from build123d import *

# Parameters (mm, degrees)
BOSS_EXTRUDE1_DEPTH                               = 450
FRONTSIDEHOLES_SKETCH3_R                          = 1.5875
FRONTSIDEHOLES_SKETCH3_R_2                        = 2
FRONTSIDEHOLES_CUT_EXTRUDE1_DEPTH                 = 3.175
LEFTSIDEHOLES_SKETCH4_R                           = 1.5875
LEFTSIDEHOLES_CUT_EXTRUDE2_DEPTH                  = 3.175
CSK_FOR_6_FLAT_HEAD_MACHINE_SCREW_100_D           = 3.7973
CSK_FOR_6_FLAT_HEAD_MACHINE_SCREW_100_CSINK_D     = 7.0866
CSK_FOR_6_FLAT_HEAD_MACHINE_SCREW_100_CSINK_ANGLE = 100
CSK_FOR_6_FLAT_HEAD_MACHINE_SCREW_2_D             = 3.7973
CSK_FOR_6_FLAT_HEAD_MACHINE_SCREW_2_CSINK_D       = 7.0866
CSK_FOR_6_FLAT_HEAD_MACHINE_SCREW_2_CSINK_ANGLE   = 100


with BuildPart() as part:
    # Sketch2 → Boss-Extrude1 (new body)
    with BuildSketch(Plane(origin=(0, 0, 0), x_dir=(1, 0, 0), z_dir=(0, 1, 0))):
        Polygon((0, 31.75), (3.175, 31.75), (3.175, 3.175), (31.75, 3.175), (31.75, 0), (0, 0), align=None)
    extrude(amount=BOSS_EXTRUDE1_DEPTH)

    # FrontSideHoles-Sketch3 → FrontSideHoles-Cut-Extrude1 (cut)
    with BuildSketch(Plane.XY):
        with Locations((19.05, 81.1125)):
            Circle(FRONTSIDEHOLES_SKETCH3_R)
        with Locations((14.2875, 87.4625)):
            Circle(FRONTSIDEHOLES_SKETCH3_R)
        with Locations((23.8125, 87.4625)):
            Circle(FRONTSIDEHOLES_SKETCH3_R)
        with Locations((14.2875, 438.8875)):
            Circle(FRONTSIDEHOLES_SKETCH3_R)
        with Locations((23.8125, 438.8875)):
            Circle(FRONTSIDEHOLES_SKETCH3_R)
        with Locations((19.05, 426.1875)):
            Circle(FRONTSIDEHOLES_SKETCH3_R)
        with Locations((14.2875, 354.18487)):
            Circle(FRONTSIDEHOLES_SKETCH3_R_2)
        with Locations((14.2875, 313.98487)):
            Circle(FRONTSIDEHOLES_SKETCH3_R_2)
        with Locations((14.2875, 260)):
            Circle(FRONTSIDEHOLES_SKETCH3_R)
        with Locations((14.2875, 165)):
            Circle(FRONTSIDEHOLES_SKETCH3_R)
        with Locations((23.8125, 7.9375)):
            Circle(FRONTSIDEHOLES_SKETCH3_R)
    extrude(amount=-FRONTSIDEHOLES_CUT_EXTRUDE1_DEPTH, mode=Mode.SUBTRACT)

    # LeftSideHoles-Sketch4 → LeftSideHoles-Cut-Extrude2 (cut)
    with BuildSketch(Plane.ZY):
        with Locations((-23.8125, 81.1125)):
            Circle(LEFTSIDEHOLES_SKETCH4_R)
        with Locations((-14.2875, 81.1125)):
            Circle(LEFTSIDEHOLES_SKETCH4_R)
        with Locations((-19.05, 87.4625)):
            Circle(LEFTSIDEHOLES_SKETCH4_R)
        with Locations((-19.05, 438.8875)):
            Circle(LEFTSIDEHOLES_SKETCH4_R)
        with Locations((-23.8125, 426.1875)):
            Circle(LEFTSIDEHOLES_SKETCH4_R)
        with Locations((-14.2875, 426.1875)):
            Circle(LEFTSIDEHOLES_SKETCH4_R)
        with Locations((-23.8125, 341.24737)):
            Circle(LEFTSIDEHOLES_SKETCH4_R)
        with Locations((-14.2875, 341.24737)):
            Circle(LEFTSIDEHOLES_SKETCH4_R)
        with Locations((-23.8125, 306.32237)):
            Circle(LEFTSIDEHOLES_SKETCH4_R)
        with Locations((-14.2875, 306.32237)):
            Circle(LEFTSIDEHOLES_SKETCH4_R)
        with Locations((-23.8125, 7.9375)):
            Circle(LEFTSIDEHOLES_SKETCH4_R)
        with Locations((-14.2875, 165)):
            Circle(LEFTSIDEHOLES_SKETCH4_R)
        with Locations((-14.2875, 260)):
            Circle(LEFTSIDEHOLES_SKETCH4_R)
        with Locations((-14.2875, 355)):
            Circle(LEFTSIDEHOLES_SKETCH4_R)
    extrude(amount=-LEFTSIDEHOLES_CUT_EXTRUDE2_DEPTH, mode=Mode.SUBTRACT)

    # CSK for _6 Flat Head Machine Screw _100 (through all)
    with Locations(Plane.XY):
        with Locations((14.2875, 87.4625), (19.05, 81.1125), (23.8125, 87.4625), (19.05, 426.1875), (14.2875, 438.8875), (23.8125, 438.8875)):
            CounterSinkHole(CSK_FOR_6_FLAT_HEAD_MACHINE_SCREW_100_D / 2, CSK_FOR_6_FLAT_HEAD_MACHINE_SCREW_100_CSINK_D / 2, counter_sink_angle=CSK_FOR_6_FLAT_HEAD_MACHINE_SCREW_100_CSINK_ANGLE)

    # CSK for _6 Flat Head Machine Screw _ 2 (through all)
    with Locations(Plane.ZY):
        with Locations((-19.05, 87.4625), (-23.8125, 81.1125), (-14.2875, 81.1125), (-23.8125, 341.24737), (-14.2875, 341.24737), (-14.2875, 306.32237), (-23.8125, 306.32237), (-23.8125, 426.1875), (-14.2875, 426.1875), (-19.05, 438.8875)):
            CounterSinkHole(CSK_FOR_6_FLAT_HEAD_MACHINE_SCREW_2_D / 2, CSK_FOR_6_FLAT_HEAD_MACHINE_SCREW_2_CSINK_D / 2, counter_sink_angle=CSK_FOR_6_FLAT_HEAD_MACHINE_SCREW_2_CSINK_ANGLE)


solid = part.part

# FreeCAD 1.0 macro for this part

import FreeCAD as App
import Part
import Sketcher
from FreeCAD import Vector
Q = App.Units.Quantity


def add_polygon(sketch, points):
    """Adds a closed chain of lines whose ends are joined by coincident constraints."""
    first, n = sketch.GeometryCount, len(points)
    for a, b in zip(points, points[1:] + points[:1]):
        sketch.addGeometry(Part.LineSegment(App.Vector(*a, 0), App.Vector(*b, 0)), False)
    for i in range(n):
        sketch.addConstraint(Sketcher.Constraint("Coincident", first + i, 2, first + (i + 1) % n, 1))

doc = App.newDocument("Part")
params = doc.addObject("Spreadsheet::Sheet", "Params")
for row, (alias, value) in enumerate([
    ("sketch1_width", "1.25 in"),
    ("sketch1_width2", "0.125 in"),
    ("pad1_length", "450 mm"),
    ("sketch2_diameter", "0.125 in"),
    ("pocket1_length", "0.125 in"),
    ("sketch3_diameter", "0.125 in"),
    ("pocket2_length", "0.125 in"),
    ("hole_diameter", "0.1495 in"),
    ("hole_csink_diameter", "0.279 in"),
    ("hole2_diameter", "0.1495 in"),
    ("hole2_csink_diameter", "0.279 in"),
], start=1):
    params.set(f"A{row}", alias)
    params.set(f"B{row}", "=" + value)
    params.setAlias(f"B{row}", alias)

body = doc.addObject("PartDesign::Body", "Body")

sketch1 = body.newObject("Sketcher::SketchObject", "Sketch")
sketch1.AttachmentSupport = (doc.getObject("XZ_Plane"), [""])
sketch1.MapMode = "FlatFace"
add_polygon(sketch1, [(3.175, -31.75), (0, -31.75), (0, 0), (31.75, 0), (31.75, -3.175), (3.175, -3.175)])
sketch1.addConstraint([
    Sketcher.Constraint("Horizontal", 0),
    Sketcher.Constraint("Vertical", 1),
    Sketcher.Constraint("Horizontal", 2),
    Sketcher.Constraint("Vertical", 3),
    Sketcher.Constraint("Horizontal", 4),
    Sketcher.Constraint("Vertical", 5),
    Sketcher.Constraint("Coincident", 1, 2, -1, 1),
    Sketcher.Constraint("Equal", 2, 1),
    Sketcher.Constraint("Equal", 0, 3),
    Sketcher.Constraint("DistanceX", 2, 1, 2, 2, Q("1.25 in")),
    Sketcher.Constraint("DistanceX", 0, 2, 0, 1, Q("0.125 in")),
])
sketch1.setExpression("Constraints[15]", "Params.sketch1_width")
sketch1.setExpression("Constraints[16]", "Params.sketch1_width2")
pad1 = body.newObject("PartDesign::Pad", "Pad")
pad1.Profile = sketch1
pad1.setExpression("Length", "Params.pad1_length")
pad1.Reversed = True

sketch2 = body.newObject("Sketcher::SketchObject", "Sketch001")
sketch2.AttachmentSupport = (doc.getObject("XY_Plane"), [""])
sketch2.MapMode = "FlatFace"
sketch2.addGeometry([
    Part.Circle(Vector(19.05, 81.1125, 0), Vector(0, 0, 1), 1.5875),
    Part.Circle(Vector(14.2875, 87.4625, 0), Vector(0, 0, 1), 1.5875),
    Part.Circle(Vector(23.8125, 87.4625, 0), Vector(0, 0, 1), 1.5875),
    Part.Circle(Vector(14.2875, 438.8875, 0), Vector(0, 0, 1), 1.5875),
    Part.Circle(Vector(23.8125, 438.8875, 0), Vector(0, 0, 1), 1.5875),
    Part.Circle(Vector(19.05, 426.1875, 0), Vector(0, 0, 1), 1.5875),
    Part.Circle(Vector(14.2875, 354.18487, 0), Vector(0, 0, 1), 2),
    Part.Circle(Vector(14.2875, 313.98487, 0), Vector(0, 0, 1), 2),
    Part.Circle(Vector(14.2875, 260, 0), Vector(0, 0, 1), 1.5875),
    Part.Circle(Vector(14.2875, 165, 0), Vector(0, 0, 1), 1.5875),
    Part.Circle(Vector(23.8125, 7.9375, 0), Vector(0, 0, 1), 1.5875),
], False)
sketch2.addConstraint([
    Sketcher.Constraint("Equal", 0, 1),
    Sketcher.Constraint("Equal", 1, 2),
    Sketcher.Constraint("Equal", 2, 3),
    Sketcher.Constraint("Equal", 3, 4),
    Sketcher.Constraint("Equal", 4, 5),
    Sketcher.Constraint("Equal", 6, 7),
    Sketcher.Constraint("Equal", 5, 8),
    Sketcher.Constraint("Equal", 8, 9),
    Sketcher.Constraint("Equal", 9, 10),
    Sketcher.Constraint("Horizontal", 1, 3, 2, 3),
    Sketcher.Constraint("Horizontal", 3, 3, 4, 3),
    Sketcher.Constraint("Vertical", 1, 3, 3, 3),
    Sketcher.Constraint("Vertical", 2, 3, 4, 3),
    Sketcher.Constraint("Vertical", 0, 3, 5, 3),
    Sketcher.Constraint("Vertical", 3, 3, 6, 3),
    Sketcher.Constraint("Vertical", 6, 3, 7, 3),
    Sketcher.Constraint("Vertical", 7, 3, 8, 3),
    Sketcher.Constraint("Vertical", 8, 3, 9, 3),
    Sketcher.Constraint("Vertical", 4, 3, 10, 3),
    Sketcher.Constraint("Diameter", 0, Q("0.125 in")),
    Sketcher.Constraint("DistanceY", 5, 3, 3, 3, Q("0.5 in")),
    Sketcher.Constraint("Diameter", 6, 4.0),
    Sketcher.Constraint("DistanceX", -1, 1, 0, 3, Q("0.75 in")),
    Sketcher.Constraint("DistanceY", 0, 3, 1, 3, Q("0.25 in")),
    Sketcher.Constraint("DistanceX", -1, 1, 1, 3, Q("0.5625 in")),
    Sketcher.Constraint("DistanceX", -1, 1, 2, 3, Q("0.9375 in")),
    Sketcher.Constraint("DistanceY", -1, 1, 10, 3, Q("0.3125 in")),
    Sketcher.Constraint("DistanceY", -1, 1, 0, 3, 81.1125),
    Sketcher.Constraint("DistanceY", -1, 1, 3, 3, 438.8875),
    Sketcher.Constraint("DistanceY", -1, 1, 8, 3, 260.0),
    Sketcher.Constraint("DistanceY", -1, 1, 9, 3, 165.0),
    Sketcher.Constraint("DistanceY", 7, 3, 6, 3, 40.2),
    Sketcher.Constraint("DistanceY", -1, 1, 6, 3, 354.18487),
])
sketch2.setExpression("Constraints[19]", "Params.sketch2_diameter")
pocket1 = body.newObject("PartDesign::Pocket", "Pocket")
pocket1.Profile = sketch2
pocket1.setExpression("Length", "Params.pocket1_length")

sketch3 = body.newObject("Sketcher::SketchObject", "Sketch002")
sketch3.AttachmentSupport = (doc.getObject("YZ_Plane"), [""])
sketch3.MapMode = "FlatFace"
sketch3.addGeometry([
    Part.Circle(Vector(81.1125, -23.8125, 0), Vector(0, 0, 1), 1.5875),
    Part.Circle(Vector(81.1125, -14.2875, 0), Vector(0, 0, 1), 1.5875),
    Part.Circle(Vector(87.4625, -19.05, 0), Vector(0, 0, 1), 1.5875),
    Part.Circle(Vector(438.8875, -19.05, 0), Vector(0, 0, 1), 1.5875),
    Part.Circle(Vector(426.1875, -23.8125, 0), Vector(0, 0, 1), 1.5875),
    Part.Circle(Vector(426.1875, -14.2875, 0), Vector(0, 0, 1), 1.5875),
    Part.Circle(Vector(341.24737, -23.8125, 0), Vector(0, 0, 1), 1.5875),
    Part.Circle(Vector(341.24737, -14.2875, 0), Vector(0, 0, 1), 1.5875),
    Part.Circle(Vector(306.32237, -23.8125, 0), Vector(0, 0, 1), 1.5875),
    Part.Circle(Vector(306.32237, -14.2875, 0), Vector(0, 0, 1), 1.5875),
    Part.Circle(Vector(7.9375, -23.8125, 0), Vector(0, 0, 1), 1.5875),
    Part.Circle(Vector(165, -14.2875, 0), Vector(0, 0, 1), 1.5875),
    Part.Circle(Vector(260, -14.2875, 0), Vector(0, 0, 1), 1.5875),
    Part.Circle(Vector(355, -14.2875, 0), Vector(0, 0, 1), 1.5875),
], False)
sketch3.addConstraint([
    Sketcher.Constraint("Equal", 0, 1),
    Sketcher.Constraint("Equal", 1, 2),
    Sketcher.Constraint("Equal", 2, 3),
    Sketcher.Constraint("Equal", 3, 4),
    Sketcher.Constraint("Equal", 4, 5),
    Sketcher.Constraint("Equal", 5, 6),
    Sketcher.Constraint("Equal", 6, 7),
    Sketcher.Constraint("Equal", 7, 8),
    Sketcher.Constraint("Equal", 8, 9),
    Sketcher.Constraint("Equal", 9, 10),
    Sketcher.Constraint("Equal", 10, 11),
    Sketcher.Constraint("Equal", 11, 12),
    Sketcher.Constraint("Equal", 12, 13),
    Sketcher.Constraint("Horizontal", 2, 3, 3, 3),
    Sketcher.Constraint("Horizontal", 0, 3, 4, 3),
    Sketcher.Constraint("Horizontal", 1, 3, 5, 3),
    Sketcher.Constraint("Horizontal", 4, 3, 6, 3),
    Sketcher.Constraint("Horizontal", 5, 3, 7, 3),
    Sketcher.Constraint("Horizontal", 6, 3, 8, 3),
    Sketcher.Constraint("Horizontal", 7, 3, 9, 3),
    Sketcher.Constraint("Horizontal", 8, 3, 10, 3),
    Sketcher.Constraint("Horizontal", 9, 3, 11, 3),
    Sketcher.Constraint("Horizontal", 11, 3, 12, 3),
    Sketcher.Constraint("Horizontal", 12, 3, 13, 3),
    Sketcher.Constraint("Vertical", 0, 3, 1, 3),
    Sketcher.Constraint("Vertical", 4, 3, 5, 3),
    Sketcher.Constraint("Vertical", 6, 3, 7, 3),
    Sketcher.Constraint("Vertical", 8, 3, 9, 3),
    Sketcher.Constraint("Diameter", 0, Q("0.125 in")),
    Sketcher.Constraint("DistanceX", 4, 3, 3, 3, Q("0.5 in")),
    Sketcher.Constraint("DistanceY", 2, 3, -1, 1, Q("0.75 in")),
    Sketcher.Constraint("DistanceX", 0, 3, 2, 3, Q("0.25 in")),
    Sketcher.Constraint("DistanceY", 0, 3, -1, 1, Q("0.9375 in")),
    Sketcher.Constraint("DistanceY", 1, 3, -1, 1, Q("0.5625 in")),
    Sketcher.Constraint("DistanceX", -1, 1, 10, 3, Q("0.3125 in")),
    Sketcher.Constraint("DistanceX", 8, 3, 6, 3, Q("1.375 in")),
    Sketcher.Constraint("DistanceX", -1, 1, 0, 3, 81.1125),
    Sketcher.Constraint("DistanceX", -1, 1, 3, 3, 438.8875),
    Sketcher.Constraint("DistanceX", -1, 1, 11, 3, 165.0),
    Sketcher.Constraint("DistanceX", -1, 1, 12, 3, 260.0),
    Sketcher.Constraint("DistanceX", -1, 1, 13, 3, 355.0),
    Sketcher.Constraint("DistanceX", -1, 1, 6, 3, 341.24737),
])
sketch3.setExpression("Constraints[28]", "Params.sketch3_diameter")
pocket2 = body.newObject("PartDesign::Pocket", "Pocket001")
pocket2.Profile = sketch3
pocket2.setExpression("Length", "Params.pocket2_length")
pocket2.Reversed = True

sketch4 = body.newObject("Sketcher::SketchObject", "Sketch003")
sketch4.AttachmentSupport = (doc.getObject("XY_Plane"), [""])
sketch4.MapMode = "FlatFace"
sketch4.addGeometry([
    Part.Circle(Vector(14.2875, 87.4625, 0), Vector(0, 0, 1), 1.89865),
    Part.Circle(Vector(19.05, 81.1125, 0), Vector(0, 0, 1), 1.89865),
    Part.Circle(Vector(23.8125, 87.4625, 0), Vector(0, 0, 1), 1.89865),
    Part.Circle(Vector(19.05, 426.1875, 0), Vector(0, 0, 1), 1.89865),
    Part.Circle(Vector(14.2875, 438.8875, 0), Vector(0, 0, 1), 1.89865),
    Part.Circle(Vector(23.8125, 438.8875, 0), Vector(0, 0, 1), 1.89865),
], False)
sketch4.addConstraint([
    Sketcher.Constraint("Equal", 0, 1),
    Sketcher.Constraint("Equal", 1, 2),
    Sketcher.Constraint("Equal", 2, 3),
    Sketcher.Constraint("Equal", 3, 4),
    Sketcher.Constraint("Equal", 4, 5),
    Sketcher.Constraint("Horizontal", 0, 3, 2, 3),
    Sketcher.Constraint("Horizontal", 4, 3, 5, 3),
    Sketcher.Constraint("Vertical", 1, 3, 3, 3),
    Sketcher.Constraint("Vertical", 0, 3, 4, 3),
    Sketcher.Constraint("Vertical", 2, 3, 5, 3),
    Sketcher.Constraint("Diameter", 0, Q("0.1495 in")),
    Sketcher.Constraint("DistanceY", 3, 3, 4, 3, Q("0.5 in")),
    Sketcher.Constraint("DistanceX", -1, 1, 1, 3, Q("0.75 in")),
    Sketcher.Constraint("DistanceY", 1, 3, 0, 3, Q("0.25 in")),
    Sketcher.Constraint("DistanceX", -1, 1, 0, 3, Q("0.5625 in")),
    Sketcher.Constraint("DistanceX", -1, 1, 2, 3, Q("0.9375 in")),
    Sketcher.Constraint("DistanceY", -1, 1, 0, 3, 87.4625),
    Sketcher.Constraint("DistanceY", -1, 1, 3, 3, 426.1875),
])
doc.recompute()
hole = body.newObject("PartDesign::Hole", "Hole")
hole.Profile = sketch4
hole.ThreadType = "None"
hole.setExpression("Diameter", "Params.hole_diameter")
hole.DepthType = "ThroughAll"
hole.HoleCutType = "Countersink"
hole.setExpression("HoleCutDiameter", "Params.hole_csink_diameter")
hole.HoleCutCountersinkAngle = 100

sketch5 = body.newObject("Sketcher::SketchObject", "Sketch004")
sketch5.AttachmentSupport = (doc.getObject("YZ_Plane"), [""])
sketch5.MapMode = "FlatFace"
sketch5.addGeometry([
    Part.Circle(Vector(87.4625, -19.05, 0), Vector(0, 0, 1), 1.89865),
    Part.Circle(Vector(81.1125, -23.8125, 0), Vector(0, 0, 1), 1.89865),
    Part.Circle(Vector(81.1125, -14.2875, 0), Vector(0, 0, 1), 1.89865),
    Part.Circle(Vector(341.24737, -23.8125, 0), Vector(0, 0, 1), 1.89865),
    Part.Circle(Vector(341.24737, -14.2875, 0), Vector(0, 0, 1), 1.89865),
    Part.Circle(Vector(306.32237, -14.2875, 0), Vector(0, 0, 1), 1.89865),
    Part.Circle(Vector(306.32237, -23.8125, 0), Vector(0, 0, 1), 1.89865),
    Part.Circle(Vector(426.1875, -23.8125, 0), Vector(0, 0, 1), 1.89865),
    Part.Circle(Vector(426.1875, -14.2875, 0), Vector(0, 0, 1), 1.89865),
    Part.Circle(Vector(438.8875, -19.05, 0), Vector(0, 0, 1), 1.89865),
], False)
sketch5.addConstraint([
    Sketcher.Constraint("Equal", 0, 1),
    Sketcher.Constraint("Equal", 1, 2),
    Sketcher.Constraint("Equal", 2, 3),
    Sketcher.Constraint("Equal", 3, 4),
    Sketcher.Constraint("Equal", 4, 5),
    Sketcher.Constraint("Equal", 5, 6),
    Sketcher.Constraint("Equal", 6, 7),
    Sketcher.Constraint("Equal", 7, 8),
    Sketcher.Constraint("Equal", 8, 9),
    Sketcher.Constraint("Horizontal", 1, 3, 3, 3),
    Sketcher.Constraint("Horizontal", 2, 3, 4, 3),
    Sketcher.Constraint("Horizontal", 4, 3, 5, 3),
    Sketcher.Constraint("Horizontal", 3, 3, 6, 3),
    Sketcher.Constraint("Horizontal", 6, 3, 7, 3),
    Sketcher.Constraint("Horizontal", 5, 3, 8, 3),
    Sketcher.Constraint("Horizontal", 0, 3, 9, 3),
    Sketcher.Constraint("Vertical", 1, 3, 2, 3),
    Sketcher.Constraint("Vertical", 3, 3, 4, 3),
    Sketcher.Constraint("Vertical", 5, 3, 6, 3),
    Sketcher.Constraint("Vertical", 7, 3, 8, 3),
    Sketcher.Constraint("Diameter", 0, Q("0.1495 in")),
    Sketcher.Constraint("DistanceX", 7, 3, 9, 3, Q("0.5 in")),
    Sketcher.Constraint("DistanceY", 0, 3, -1, 1, Q("0.75 in")),
    Sketcher.Constraint("DistanceX", 1, 3, 0, 3, Q("0.25 in")),
    Sketcher.Constraint("DistanceY", 1, 3, -1, 1, Q("0.9375 in")),
    Sketcher.Constraint("DistanceY", 2, 3, -1, 1, Q("0.5625 in")),
    Sketcher.Constraint("DistanceX", 5, 3, 4, 3, Q("1.375 in")),
    Sketcher.Constraint("DistanceX", -1, 1, 0, 3, 87.4625),
    Sketcher.Constraint("DistanceX", -1, 1, 7, 3, 426.1875),
    Sketcher.Constraint("DistanceX", -1, 1, 3, 3, 341.24737),
])
doc.recompute()
hole2 = body.newObject("PartDesign::Hole", "Hole001")
hole2.Profile = sketch5
hole2.ThreadType = "None"
hole2.setExpression("Diameter", "Params.hole2_diameter")
hole2.DepthType = "ThroughAll"
hole2.HoleCutType = "Countersink"
hole2.setExpression("HoleCutDiameter", "Params.hole2_csink_diameter")
hole2.HoleCutCountersinkAngle = 100
hole2.Reversed = True

doc.recompute()
